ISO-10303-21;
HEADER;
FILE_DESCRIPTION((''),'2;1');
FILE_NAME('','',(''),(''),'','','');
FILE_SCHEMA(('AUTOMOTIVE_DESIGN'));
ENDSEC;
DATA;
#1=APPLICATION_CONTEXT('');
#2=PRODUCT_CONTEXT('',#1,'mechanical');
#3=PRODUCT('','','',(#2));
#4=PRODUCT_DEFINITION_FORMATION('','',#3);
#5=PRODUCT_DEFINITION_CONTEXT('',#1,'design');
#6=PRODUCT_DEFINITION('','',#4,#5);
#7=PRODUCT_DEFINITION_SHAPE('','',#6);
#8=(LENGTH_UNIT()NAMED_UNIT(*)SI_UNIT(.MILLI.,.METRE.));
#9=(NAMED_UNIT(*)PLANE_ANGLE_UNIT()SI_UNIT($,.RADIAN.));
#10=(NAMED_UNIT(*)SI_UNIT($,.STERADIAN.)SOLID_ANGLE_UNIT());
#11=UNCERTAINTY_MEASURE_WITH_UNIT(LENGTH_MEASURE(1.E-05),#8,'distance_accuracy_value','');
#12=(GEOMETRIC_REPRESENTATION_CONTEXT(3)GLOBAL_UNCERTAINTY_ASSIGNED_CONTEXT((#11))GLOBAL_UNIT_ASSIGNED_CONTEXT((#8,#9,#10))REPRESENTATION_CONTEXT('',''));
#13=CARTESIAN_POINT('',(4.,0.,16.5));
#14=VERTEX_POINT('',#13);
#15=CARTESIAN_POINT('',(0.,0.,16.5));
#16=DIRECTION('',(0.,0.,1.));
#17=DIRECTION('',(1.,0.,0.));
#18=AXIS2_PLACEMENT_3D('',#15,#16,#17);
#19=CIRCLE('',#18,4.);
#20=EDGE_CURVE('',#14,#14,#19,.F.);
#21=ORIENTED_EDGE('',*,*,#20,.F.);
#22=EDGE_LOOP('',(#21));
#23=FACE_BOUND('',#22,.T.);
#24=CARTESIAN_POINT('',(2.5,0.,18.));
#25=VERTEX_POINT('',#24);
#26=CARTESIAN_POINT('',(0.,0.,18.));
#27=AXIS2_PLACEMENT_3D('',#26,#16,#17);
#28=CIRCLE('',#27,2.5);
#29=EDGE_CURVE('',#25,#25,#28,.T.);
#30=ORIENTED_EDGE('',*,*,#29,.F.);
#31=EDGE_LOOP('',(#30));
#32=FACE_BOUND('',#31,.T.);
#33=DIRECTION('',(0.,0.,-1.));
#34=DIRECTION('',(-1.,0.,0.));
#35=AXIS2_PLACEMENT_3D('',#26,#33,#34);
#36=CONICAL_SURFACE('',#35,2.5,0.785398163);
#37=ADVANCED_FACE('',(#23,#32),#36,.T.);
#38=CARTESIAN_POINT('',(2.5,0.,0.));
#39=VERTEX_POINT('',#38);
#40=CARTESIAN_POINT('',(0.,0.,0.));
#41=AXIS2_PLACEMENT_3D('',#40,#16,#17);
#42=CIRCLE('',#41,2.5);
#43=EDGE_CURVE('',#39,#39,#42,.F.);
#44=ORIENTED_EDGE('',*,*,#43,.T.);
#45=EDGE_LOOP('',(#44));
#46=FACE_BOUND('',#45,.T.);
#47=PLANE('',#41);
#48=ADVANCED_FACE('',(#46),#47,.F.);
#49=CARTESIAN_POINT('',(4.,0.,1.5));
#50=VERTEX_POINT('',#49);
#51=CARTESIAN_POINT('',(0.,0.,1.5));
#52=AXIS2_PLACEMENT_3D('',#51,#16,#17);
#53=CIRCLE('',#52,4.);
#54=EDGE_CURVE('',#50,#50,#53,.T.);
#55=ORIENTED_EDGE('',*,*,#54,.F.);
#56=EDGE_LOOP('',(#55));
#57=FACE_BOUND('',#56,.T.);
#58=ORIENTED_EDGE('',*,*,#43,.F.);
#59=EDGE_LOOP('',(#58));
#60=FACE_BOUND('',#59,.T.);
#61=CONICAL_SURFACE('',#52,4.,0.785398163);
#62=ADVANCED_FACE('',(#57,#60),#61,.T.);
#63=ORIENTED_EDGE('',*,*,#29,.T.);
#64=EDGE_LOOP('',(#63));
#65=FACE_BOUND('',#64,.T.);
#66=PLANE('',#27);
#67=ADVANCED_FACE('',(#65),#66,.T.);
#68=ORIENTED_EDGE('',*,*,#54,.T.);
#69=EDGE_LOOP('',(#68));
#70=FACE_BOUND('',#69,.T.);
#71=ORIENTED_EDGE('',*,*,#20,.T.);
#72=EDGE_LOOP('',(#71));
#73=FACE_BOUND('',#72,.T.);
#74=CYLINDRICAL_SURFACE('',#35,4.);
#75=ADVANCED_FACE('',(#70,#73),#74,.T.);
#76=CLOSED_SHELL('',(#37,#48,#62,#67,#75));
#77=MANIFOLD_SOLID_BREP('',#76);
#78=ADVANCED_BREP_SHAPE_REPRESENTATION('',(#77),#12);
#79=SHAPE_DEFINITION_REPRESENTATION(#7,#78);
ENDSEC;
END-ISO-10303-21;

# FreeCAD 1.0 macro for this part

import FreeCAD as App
import Part
import Sketcher


def edges_at(feature, points):
    """Names of the edges that pass closest to the given points."""
    edges = feature.Shape.Edges
    near = lambda p: min(range(len(edges)), key=lambda i: edges[i].distToShape(Part.Vertex(*p))[0])
    return sorted({f"Edge{near(p) + 1}" for p in points})

doc = App.newDocument("Part")
body = doc.addObject("PartDesign::Body", "Body")

sketch1 = body.newObject("Sketcher::SketchObject", "Sketch")
sketch1.AttachmentSupport = (doc.getObject("XY_Plane"), [""])
sketch1.MapMode = "FlatFace"
sketch1.addGeometry(Part.Circle(App.Vector(0, 0, 0), App.Vector(0, 0, 1), 4), False)
sketch1.addConstraint([
    Sketcher.Constraint("Coincident", 0, 3, -1, 1),
    Sketcher.Constraint("Diameter", 0, 8.0),
])
pad1 = body.newObject("PartDesign::Pad", "Pad")
pad1.Profile = sketch1
pad1.Length = 18
doc.recompute()

chamfer = body.newObject("PartDesign::Chamfer", "Chamfer")
chamfer.Base = (pad1, edges_at(pad1, [(-4, 0, 0), (-4, 0, 18)]))
chamfer.Size = 1.5

doc.recompute()
